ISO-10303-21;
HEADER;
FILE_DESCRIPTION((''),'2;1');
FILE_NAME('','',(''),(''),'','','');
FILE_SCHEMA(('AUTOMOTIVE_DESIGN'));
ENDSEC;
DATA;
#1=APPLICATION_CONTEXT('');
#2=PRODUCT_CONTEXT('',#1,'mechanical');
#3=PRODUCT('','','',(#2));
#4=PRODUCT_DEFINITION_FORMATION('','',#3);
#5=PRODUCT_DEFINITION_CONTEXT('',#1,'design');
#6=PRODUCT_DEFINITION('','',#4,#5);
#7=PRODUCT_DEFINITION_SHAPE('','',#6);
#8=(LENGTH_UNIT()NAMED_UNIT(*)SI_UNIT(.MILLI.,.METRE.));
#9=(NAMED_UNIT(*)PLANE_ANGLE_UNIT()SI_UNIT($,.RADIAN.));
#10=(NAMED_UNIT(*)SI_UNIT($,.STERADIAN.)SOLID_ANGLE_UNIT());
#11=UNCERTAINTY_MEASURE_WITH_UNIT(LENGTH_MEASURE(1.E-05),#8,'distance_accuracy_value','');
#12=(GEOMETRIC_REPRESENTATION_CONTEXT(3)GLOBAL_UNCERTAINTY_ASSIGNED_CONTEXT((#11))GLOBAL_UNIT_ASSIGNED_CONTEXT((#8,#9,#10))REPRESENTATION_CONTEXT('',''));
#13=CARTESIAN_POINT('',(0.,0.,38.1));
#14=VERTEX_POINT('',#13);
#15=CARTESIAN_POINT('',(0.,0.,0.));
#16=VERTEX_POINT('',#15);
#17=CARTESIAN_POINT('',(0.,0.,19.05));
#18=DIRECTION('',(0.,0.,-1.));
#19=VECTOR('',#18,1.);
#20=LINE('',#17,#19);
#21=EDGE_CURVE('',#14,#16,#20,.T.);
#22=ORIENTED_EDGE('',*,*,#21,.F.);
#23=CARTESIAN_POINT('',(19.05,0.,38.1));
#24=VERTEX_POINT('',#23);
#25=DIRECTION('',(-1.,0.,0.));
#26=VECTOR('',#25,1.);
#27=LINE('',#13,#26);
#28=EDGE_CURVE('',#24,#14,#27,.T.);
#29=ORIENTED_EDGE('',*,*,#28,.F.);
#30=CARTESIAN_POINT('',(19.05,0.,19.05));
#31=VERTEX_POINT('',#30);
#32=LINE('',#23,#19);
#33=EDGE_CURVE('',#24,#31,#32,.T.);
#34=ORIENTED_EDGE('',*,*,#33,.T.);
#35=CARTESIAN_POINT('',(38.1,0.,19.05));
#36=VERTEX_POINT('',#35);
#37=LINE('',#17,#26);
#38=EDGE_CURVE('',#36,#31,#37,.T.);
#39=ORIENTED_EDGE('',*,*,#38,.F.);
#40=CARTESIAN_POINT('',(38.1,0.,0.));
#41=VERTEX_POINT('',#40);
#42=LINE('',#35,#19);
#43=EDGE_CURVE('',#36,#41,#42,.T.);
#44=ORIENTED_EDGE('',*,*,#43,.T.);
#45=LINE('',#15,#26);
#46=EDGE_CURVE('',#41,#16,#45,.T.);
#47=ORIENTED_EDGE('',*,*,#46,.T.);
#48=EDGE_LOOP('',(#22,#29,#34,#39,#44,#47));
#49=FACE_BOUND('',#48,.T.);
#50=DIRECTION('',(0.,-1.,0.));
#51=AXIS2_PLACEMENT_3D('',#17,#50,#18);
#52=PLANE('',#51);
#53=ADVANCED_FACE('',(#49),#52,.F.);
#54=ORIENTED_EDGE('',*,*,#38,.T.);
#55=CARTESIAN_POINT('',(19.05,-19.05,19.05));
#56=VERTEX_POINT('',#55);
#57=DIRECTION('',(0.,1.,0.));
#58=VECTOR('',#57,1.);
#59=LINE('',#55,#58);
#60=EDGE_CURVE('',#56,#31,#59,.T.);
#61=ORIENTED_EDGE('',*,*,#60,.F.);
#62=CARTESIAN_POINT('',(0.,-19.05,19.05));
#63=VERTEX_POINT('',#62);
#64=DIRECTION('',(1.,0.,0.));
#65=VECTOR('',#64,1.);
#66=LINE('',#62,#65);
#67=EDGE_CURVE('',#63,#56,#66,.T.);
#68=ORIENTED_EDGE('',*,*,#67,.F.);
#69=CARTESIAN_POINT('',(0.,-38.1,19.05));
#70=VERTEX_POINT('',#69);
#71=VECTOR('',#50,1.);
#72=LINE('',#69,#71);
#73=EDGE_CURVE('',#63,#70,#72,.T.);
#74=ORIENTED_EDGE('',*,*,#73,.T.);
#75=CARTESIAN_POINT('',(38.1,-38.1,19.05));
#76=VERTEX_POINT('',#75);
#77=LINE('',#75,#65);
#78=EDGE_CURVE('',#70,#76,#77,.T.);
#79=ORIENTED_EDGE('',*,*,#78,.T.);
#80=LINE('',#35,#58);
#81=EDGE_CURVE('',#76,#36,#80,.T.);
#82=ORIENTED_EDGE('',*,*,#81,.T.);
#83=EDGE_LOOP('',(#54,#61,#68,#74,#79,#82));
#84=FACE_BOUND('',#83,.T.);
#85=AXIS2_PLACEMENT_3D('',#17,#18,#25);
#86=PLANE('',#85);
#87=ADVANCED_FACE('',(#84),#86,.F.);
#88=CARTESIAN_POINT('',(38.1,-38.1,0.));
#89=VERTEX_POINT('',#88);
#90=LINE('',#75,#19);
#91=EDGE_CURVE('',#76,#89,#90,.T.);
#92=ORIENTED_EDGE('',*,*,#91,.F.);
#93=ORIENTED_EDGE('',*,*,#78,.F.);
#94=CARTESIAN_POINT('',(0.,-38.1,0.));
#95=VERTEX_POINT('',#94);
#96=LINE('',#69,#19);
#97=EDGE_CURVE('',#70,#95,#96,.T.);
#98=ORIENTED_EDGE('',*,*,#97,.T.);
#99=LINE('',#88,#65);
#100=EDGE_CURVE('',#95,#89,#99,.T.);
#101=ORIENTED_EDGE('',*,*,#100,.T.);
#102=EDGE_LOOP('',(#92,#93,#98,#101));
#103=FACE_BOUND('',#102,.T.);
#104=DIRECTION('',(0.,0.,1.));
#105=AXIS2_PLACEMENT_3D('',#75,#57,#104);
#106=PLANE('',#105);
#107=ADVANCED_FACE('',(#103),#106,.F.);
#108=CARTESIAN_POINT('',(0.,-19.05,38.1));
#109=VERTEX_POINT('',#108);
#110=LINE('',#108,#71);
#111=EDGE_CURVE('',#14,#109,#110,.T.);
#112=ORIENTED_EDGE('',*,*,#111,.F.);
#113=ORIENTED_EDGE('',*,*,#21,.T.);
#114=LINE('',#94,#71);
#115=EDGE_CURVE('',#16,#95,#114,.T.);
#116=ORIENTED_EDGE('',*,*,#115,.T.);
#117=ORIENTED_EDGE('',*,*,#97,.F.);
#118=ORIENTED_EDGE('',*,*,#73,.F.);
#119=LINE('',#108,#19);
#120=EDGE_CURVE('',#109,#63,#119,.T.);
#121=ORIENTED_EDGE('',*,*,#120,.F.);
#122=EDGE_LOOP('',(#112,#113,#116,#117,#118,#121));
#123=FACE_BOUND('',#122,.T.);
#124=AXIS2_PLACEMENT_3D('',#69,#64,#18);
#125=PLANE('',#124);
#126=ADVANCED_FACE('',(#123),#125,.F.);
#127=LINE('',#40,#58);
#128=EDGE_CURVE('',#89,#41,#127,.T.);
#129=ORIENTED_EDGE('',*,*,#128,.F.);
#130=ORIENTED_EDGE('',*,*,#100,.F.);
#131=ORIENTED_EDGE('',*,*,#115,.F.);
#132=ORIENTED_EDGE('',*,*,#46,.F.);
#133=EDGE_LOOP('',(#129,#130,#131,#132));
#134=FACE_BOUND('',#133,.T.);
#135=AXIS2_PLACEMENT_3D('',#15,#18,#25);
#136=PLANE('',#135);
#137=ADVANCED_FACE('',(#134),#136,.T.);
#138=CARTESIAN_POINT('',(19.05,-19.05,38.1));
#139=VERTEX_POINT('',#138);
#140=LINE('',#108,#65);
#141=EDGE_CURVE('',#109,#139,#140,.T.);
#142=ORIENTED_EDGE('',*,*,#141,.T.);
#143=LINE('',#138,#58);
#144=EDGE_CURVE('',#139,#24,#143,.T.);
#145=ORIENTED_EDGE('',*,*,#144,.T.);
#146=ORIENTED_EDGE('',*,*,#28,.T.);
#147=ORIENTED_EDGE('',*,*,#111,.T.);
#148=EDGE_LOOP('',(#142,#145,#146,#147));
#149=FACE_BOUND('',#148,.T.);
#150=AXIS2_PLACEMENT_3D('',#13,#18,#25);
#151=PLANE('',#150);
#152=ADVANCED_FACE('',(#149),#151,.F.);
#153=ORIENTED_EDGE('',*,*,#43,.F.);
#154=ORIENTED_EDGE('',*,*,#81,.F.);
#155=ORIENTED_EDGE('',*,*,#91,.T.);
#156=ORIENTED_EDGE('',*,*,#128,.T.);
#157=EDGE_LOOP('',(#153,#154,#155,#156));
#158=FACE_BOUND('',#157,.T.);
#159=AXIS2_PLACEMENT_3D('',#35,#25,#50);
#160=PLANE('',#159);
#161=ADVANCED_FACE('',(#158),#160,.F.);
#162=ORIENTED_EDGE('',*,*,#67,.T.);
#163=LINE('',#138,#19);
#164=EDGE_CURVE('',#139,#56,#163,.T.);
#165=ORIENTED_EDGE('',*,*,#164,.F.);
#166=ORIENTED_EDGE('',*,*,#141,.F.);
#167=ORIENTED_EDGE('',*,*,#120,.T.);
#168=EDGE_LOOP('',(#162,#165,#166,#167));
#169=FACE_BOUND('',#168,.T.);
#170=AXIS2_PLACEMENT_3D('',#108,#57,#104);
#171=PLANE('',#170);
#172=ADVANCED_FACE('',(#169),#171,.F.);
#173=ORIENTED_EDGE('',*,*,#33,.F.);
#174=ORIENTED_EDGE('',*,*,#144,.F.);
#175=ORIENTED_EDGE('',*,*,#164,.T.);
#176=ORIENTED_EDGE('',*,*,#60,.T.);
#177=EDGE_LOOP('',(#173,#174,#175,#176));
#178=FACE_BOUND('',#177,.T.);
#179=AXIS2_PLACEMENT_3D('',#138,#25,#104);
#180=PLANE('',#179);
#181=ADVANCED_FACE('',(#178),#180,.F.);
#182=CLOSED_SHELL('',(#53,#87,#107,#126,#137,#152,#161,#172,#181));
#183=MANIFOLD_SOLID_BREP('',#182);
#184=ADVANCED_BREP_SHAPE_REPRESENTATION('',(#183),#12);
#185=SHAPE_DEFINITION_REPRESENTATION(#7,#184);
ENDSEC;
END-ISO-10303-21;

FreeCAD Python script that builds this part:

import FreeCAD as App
import Part
import Sketcher

V = App.Vector
Q = App.Units.Quantity


def add_polygon(sketch, points):
    """Adds a closed chain of lines whose ends are joined by coincident constraints."""
    first, n = sketch.GeometryCount, len(points)
    for a, b in zip(points, points[1:] + points[:1]):
        sketch.addGeometry(Part.LineSegment(App.Vector(*a, 0), App.Vector(*b, 0)), False)
    for i in range(n):
        sketch.addConstraint(Sketcher.Constraint("Coincident", first + i, 2, first + (i + 1) % n, 1))

doc = App.newDocument("Part")
body = doc.addObject("PartDesign::Body", "Body")

# Sketch on XY plane
sketch1 = body.newObject("Sketcher::SketchObject", "Sketch")
sketch1.AttachmentSupport = (doc.getObject("XY_Plane"), [""])
sketch1.MapMode = "FlatFace"
add_polygon(sketch1, [(0, 0), (0, -38), (38, -38), (38, 0)])  # lines 0-3
sketch1.addConstraint(Sketcher.Constraint("Vertical", 0))
sketch1.addConstraint(Sketcher.Constraint("Horizontal", 1))
sketch1.addConstraint(Sketcher.Constraint("Vertical", 2))
sketch1.addConstraint(Sketcher.Constraint("Horizontal", 3))
sketch1.addConstraint(Sketcher.Constraint("Coincident", 3, 2, -1, 1))
sketch1.addConstraint(Sketcher.Constraint("Equal", 3, 0))
sketch1.addConstraint(Sketcher.Constraint("DistanceX", 1, 1, 1, 2, Q("1.5 in")))
pad1 = body.newObject("PartDesign::Pad", "Pad")
pad1.Profile = sketch1
pad1.Length = Q("0.75 in")

# Sketch on XY plane
sketch2 = body.newObject("Sketcher::SketchObject", "Sketch001")
sketch2.AttachmentSupport = (doc.getObject("XY_Plane"), [""])
sketch2.MapMode = "FlatFace"
sketch2.AttachmentOffset = App.Placement(V(0, 0, 0.75 * 25.4), App.Rotation())
add_polygon(sketch2, [(0, 0), (0, -19), (19, -19), (19, 0)])  # lines 0-3
sketch2.addConstraint(Sketcher.Constraint("Vertical", 0))
sketch2.addConstraint(Sketcher.Constraint("Horizontal", 1))
sketch2.addConstraint(Sketcher.Constraint("Vertical", 2))
sketch2.addConstraint(Sketcher.Constraint("Horizontal", 3))
sketch2.addConstraint(Sketcher.Constraint("Coincident", 3, 2, -1, 1))
sketch2.addConstraint(Sketcher.Constraint("Equal", 3, 0))
sketch2.addConstraint(Sketcher.Constraint("DistanceX", 1, 1, 1, 2, Q("0.75 in")))
pad2 = body.newObject("PartDesign::Pad", "Pad001")
pad2.Profile = sketch2
pad2.Length = Q("0.75 in")

doc.recompute()
